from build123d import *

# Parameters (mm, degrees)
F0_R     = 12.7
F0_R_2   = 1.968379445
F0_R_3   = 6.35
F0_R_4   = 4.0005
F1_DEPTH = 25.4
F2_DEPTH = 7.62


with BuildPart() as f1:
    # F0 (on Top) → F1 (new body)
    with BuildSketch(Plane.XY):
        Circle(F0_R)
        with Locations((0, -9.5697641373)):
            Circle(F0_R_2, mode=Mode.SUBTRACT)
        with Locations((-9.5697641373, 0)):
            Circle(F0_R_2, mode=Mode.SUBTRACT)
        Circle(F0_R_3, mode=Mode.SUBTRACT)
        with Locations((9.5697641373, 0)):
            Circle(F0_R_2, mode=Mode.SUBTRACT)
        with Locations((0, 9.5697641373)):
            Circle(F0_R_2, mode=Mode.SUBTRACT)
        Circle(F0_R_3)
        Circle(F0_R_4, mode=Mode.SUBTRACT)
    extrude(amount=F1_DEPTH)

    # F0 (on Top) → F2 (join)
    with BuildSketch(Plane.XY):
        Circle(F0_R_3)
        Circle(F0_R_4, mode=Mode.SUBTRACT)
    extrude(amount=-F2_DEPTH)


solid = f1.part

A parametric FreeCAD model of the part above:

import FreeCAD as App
import Part
import Sketcher
Q = App.Units.Quantity

doc = App.newDocument("Part")
params = doc.addObject("Spreadsheet::Sheet", "Params")
for row, (alias, value) in enumerate([
    ("sketch1_diameter", "1 in"),
    ("sketch1_diameter2", "0.315 in"),
    ("pad1_length", "1 in"),
    ("sketch2_diameter", "0.5 in"),
    ("sketch2_diameter2", "0.315 in"),
    ("pad2_length", "0.3 in"),
], start=1):
    params.set(f"A{row}", alias)
    params.set(f"B{row}", "=" + value)
    params.setAlias(f"B{row}", alias)

body = doc.addObject("PartDesign::Body", "Body")

# Sketch on XY plane
sketch1 = body.newObject("Sketcher::SketchObject", "Sketch")
sketch1.AttachmentSupport = (doc.getObject("XY_Plane"), [""])
sketch1.MapMode = "FlatFace"
sketch1.addGeometry([
    Part.Circle(App.Vector(0, 0, 0), App.Vector(0, 0, 1), 12.7),  # 0
    Part.Circle(App.Vector(0, -9.6, 0), App.Vector(0, 0, 1), 2),  # 1
    Part.Circle(App.Vector(-9.6, 0, 0), App.Vector(0, 0, 1), 2),  # 2
    Part.Circle(App.Vector(0, 0, 0), App.Vector(0, 0, 1), 4),  # 3
    Part.Circle(App.Vector(9.6, 0, 0), App.Vector(0, 0, 1), 2),  # 4
    Part.Circle(App.Vector(0, 9.6, 0), App.Vector(0, 0, 1), 2),  # 5
], False)
sketch1.addConstraint([
    Sketcher.Constraint("Coincident", 0, 3, -1, 1),
    Sketcher.Constraint("Coincident", 3, 3, -1, 1),
    Sketcher.Constraint("Equal", 1, 2),
    Sketcher.Constraint("Equal", 2, 4),
    Sketcher.Constraint("Equal", 4, 5),
    Sketcher.Constraint("Symmetric", 2, 3, 4, 3, -1, 1),
    Sketcher.Constraint("Symmetric", 1, 3, 5, 3, -1, 1),
    Sketcher.Constraint("PointOnObject", 1, 3, -2),
    Sketcher.Constraint("PointOnObject", 2, 3, -1),
    Sketcher.Constraint("Diameter", 0, Q("1 in")),
    Sketcher.Constraint("Diameter", 3, Q("0.315 in")),
    Sketcher.Constraint("Diameter", 1, 3.936759),
    Sketcher.Constraint("DistanceX", 2, 3, 4, 3, 19.139528),
    Sketcher.Constraint("DistanceY", 1, 3, 5, 3, 19.139528),
])
sketch1.setExpression("Constraints[9]", "Params.sketch1_diameter")
sketch1.setExpression("Constraints[10]", "Params.sketch1_diameter2")
pad1 = body.newObject("PartDesign::Pad", "Pad")
pad1.Profile = sketch1
pad1.setExpression("Length", "Params.pad1_length")

# Sketch on XY plane
sketch2 = body.newObject("Sketcher::SketchObject", "Sketch001")
sketch2.AttachmentSupport = (doc.getObject("XY_Plane"), [""])
sketch2.MapMode = "FlatFace"
sketch2.addGeometry([
    Part.Circle(App.Vector(0, 0, 0), App.Vector(0, 0, 1), 6.3),
    Part.Circle(App.Vector(0, 0, 0), App.Vector(0, 0, 1), 4),
], False)
sketch2.addConstraint([
    Sketcher.Constraint("Coincident", 0, 3, -1, 1),
    Sketcher.Constraint("Coincident", 1, 3, -1, 1),
    Sketcher.Constraint("Diameter", 0, Q("0.5 in")),
    Sketcher.Constraint("Diameter", 1, Q("0.315 in")),
])
sketch2.setExpression("Constraints[2]", "Params.sketch2_diameter")
sketch2.setExpression("Constraints[3]", "Params.sketch2_diameter2")
pad2 = body.newObject("PartDesign::Pad", "Pad001")
pad2.Profile = sketch2
pad2.setExpression("Length", "Params.pad2_length")
pad2.Reversed = True

doc.recompute()
